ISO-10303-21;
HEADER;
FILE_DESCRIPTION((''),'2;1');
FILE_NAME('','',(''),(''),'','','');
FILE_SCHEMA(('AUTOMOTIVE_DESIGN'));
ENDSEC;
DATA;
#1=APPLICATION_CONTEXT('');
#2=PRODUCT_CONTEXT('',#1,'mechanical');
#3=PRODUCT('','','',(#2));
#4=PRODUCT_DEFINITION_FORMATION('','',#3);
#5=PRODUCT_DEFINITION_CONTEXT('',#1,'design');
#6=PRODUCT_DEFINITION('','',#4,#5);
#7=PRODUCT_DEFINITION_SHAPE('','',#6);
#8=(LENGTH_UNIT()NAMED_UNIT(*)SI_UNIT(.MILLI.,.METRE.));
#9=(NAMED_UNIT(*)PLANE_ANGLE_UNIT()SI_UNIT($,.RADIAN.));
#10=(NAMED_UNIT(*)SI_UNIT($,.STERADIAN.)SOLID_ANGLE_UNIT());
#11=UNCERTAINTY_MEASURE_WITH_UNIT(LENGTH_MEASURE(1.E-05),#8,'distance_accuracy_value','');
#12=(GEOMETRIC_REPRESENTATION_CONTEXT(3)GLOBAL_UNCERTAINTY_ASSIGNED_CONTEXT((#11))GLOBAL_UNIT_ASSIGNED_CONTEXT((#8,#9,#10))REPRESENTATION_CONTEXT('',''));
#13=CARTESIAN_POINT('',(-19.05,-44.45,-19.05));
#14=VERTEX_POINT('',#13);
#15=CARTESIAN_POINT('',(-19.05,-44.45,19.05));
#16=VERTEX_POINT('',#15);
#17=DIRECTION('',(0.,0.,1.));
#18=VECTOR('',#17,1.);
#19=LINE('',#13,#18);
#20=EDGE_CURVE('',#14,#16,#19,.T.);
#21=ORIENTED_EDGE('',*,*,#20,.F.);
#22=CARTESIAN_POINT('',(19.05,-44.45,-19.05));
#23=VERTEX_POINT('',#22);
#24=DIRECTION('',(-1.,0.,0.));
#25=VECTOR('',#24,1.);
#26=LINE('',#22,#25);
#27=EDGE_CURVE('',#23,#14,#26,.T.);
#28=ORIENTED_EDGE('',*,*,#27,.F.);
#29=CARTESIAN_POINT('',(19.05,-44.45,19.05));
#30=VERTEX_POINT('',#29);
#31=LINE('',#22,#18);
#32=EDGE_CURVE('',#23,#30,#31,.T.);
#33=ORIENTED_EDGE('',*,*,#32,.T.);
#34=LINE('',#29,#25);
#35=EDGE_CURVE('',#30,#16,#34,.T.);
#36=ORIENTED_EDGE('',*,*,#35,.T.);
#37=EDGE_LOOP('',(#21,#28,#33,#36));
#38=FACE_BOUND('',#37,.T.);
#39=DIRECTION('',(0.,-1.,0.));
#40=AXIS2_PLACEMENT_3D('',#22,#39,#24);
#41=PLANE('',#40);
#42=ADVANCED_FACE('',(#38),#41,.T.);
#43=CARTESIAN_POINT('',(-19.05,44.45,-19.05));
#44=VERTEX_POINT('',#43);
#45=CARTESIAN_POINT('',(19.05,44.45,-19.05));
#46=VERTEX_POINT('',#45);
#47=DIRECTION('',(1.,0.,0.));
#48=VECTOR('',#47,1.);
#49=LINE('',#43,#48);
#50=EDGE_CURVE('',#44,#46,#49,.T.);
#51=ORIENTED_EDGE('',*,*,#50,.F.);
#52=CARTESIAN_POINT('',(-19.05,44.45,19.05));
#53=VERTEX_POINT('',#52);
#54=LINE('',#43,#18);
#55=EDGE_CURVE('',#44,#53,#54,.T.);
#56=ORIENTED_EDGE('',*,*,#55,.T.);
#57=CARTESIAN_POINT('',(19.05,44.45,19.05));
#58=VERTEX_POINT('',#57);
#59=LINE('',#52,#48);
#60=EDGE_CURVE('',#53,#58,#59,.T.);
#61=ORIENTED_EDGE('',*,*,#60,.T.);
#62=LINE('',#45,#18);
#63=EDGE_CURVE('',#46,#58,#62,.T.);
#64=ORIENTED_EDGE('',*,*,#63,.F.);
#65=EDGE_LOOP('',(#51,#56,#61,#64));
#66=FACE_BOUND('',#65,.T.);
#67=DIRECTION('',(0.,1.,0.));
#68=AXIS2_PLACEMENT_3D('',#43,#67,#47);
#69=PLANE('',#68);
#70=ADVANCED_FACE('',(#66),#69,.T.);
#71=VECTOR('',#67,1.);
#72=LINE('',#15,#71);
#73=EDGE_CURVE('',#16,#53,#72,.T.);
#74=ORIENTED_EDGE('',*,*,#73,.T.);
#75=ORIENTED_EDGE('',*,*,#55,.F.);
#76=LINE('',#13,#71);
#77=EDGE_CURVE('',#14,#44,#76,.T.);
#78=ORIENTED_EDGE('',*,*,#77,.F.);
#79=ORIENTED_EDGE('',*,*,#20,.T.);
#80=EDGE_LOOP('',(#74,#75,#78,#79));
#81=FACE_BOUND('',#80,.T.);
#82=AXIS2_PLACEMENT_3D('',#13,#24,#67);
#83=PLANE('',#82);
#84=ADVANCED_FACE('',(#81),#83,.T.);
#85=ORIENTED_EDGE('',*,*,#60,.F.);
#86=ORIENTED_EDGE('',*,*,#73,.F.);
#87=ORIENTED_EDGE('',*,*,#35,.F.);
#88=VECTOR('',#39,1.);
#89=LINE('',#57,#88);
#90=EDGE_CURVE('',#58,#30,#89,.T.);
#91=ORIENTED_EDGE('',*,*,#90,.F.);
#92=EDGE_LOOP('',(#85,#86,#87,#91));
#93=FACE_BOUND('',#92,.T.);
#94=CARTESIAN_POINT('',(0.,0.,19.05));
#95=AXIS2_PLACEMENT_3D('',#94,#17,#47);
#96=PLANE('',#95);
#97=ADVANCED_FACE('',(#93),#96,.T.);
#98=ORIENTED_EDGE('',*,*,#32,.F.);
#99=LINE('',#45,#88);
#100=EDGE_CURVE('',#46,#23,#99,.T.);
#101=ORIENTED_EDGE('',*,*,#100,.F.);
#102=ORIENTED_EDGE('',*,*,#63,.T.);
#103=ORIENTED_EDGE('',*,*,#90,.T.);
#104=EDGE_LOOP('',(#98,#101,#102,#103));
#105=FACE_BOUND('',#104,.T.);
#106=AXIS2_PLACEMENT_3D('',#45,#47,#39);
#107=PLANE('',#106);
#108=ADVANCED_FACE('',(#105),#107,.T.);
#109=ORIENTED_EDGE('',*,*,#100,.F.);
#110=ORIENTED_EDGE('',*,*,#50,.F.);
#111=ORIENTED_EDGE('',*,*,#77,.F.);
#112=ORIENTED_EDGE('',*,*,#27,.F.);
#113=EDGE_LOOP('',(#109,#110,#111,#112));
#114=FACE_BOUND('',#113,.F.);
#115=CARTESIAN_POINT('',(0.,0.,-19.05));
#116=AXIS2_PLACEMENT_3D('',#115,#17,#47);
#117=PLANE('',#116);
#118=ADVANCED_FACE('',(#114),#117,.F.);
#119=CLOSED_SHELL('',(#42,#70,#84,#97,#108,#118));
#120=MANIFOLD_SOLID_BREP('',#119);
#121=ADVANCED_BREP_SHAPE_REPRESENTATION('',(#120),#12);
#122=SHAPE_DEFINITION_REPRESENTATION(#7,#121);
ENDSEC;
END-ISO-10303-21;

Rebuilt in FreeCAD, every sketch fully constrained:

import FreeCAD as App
import Part
import Sketcher
from FreeCAD import Vector
Q = App.Units.Quantity

doc = App.newDocument("Part")
body = doc.addObject("PartDesign::Body", "Body")

# Sketch on XY plane
sketch1 = body.newObject("Sketcher::SketchObject", "Sketch")
sketch1.AttachmentSupport = (doc.getObject("XY_Plane"), [""])
sketch1.MapMode = "FlatFace"
sketch1.AttachmentOffset = App.Placement(Vector(0, 0, -0.75 * 25.4), App.Rotation())
sketch1.addGeometry(Part.LineSegment(Vector(19.05, 44.45, 0), Vector(-19.05, 44.45, 0)), False)
sketch1.addGeometry(Part.LineSegment(Vector(-19.05, 44.45, 0), Vector(-19.05, -44.45, 0)), False)
sketch1.addGeometry(Part.LineSegment(Vector(-19.05, -44.45, 0), Vector(19.05, -44.45, 0)), False)
sketch1.addGeometry(Part.LineSegment(Vector(19.05, -44.45, 0), Vector(19.05, 44.45, 0)), False)
sketch1.addConstraint(Sketcher.Constraint("Coincident", 0, 2, 1, 1))
sketch1.addConstraint(Sketcher.Constraint("Coincident", 1, 2, 2, 1))
sketch1.addConstraint(Sketcher.Constraint("Coincident", 2, 2, 3, 1))
sketch1.addConstraint(Sketcher.Constraint("Coincident", 3, 2, 0, 1))
sketch1.addConstraint(Sketcher.Constraint("Horizontal", 0))
sketch1.addConstraint(Sketcher.Constraint("Vertical", 1))
sketch1.addConstraint(Sketcher.Constraint("Horizontal", 2))
sketch1.addConstraint(Sketcher.Constraint("Vertical", 3))
sketch1.addConstraint(Sketcher.Constraint("Symmetric", 0, 2, 2, 2, -1, 1))
sketch1.addConstraint(Sketcher.Constraint("DistanceX", 0, 2, -1, 1, Q("0.75 in")))
sketch1.addConstraint(Sketcher.Constraint("DistanceY", -1, 1, 0, 2, Q("1.75 in")))
pad1 = body.newObject("PartDesign::Pad", "Pad")
pad1.Profile = sketch1
pad1.Length = Q("1.5 in")

doc.recompute()
